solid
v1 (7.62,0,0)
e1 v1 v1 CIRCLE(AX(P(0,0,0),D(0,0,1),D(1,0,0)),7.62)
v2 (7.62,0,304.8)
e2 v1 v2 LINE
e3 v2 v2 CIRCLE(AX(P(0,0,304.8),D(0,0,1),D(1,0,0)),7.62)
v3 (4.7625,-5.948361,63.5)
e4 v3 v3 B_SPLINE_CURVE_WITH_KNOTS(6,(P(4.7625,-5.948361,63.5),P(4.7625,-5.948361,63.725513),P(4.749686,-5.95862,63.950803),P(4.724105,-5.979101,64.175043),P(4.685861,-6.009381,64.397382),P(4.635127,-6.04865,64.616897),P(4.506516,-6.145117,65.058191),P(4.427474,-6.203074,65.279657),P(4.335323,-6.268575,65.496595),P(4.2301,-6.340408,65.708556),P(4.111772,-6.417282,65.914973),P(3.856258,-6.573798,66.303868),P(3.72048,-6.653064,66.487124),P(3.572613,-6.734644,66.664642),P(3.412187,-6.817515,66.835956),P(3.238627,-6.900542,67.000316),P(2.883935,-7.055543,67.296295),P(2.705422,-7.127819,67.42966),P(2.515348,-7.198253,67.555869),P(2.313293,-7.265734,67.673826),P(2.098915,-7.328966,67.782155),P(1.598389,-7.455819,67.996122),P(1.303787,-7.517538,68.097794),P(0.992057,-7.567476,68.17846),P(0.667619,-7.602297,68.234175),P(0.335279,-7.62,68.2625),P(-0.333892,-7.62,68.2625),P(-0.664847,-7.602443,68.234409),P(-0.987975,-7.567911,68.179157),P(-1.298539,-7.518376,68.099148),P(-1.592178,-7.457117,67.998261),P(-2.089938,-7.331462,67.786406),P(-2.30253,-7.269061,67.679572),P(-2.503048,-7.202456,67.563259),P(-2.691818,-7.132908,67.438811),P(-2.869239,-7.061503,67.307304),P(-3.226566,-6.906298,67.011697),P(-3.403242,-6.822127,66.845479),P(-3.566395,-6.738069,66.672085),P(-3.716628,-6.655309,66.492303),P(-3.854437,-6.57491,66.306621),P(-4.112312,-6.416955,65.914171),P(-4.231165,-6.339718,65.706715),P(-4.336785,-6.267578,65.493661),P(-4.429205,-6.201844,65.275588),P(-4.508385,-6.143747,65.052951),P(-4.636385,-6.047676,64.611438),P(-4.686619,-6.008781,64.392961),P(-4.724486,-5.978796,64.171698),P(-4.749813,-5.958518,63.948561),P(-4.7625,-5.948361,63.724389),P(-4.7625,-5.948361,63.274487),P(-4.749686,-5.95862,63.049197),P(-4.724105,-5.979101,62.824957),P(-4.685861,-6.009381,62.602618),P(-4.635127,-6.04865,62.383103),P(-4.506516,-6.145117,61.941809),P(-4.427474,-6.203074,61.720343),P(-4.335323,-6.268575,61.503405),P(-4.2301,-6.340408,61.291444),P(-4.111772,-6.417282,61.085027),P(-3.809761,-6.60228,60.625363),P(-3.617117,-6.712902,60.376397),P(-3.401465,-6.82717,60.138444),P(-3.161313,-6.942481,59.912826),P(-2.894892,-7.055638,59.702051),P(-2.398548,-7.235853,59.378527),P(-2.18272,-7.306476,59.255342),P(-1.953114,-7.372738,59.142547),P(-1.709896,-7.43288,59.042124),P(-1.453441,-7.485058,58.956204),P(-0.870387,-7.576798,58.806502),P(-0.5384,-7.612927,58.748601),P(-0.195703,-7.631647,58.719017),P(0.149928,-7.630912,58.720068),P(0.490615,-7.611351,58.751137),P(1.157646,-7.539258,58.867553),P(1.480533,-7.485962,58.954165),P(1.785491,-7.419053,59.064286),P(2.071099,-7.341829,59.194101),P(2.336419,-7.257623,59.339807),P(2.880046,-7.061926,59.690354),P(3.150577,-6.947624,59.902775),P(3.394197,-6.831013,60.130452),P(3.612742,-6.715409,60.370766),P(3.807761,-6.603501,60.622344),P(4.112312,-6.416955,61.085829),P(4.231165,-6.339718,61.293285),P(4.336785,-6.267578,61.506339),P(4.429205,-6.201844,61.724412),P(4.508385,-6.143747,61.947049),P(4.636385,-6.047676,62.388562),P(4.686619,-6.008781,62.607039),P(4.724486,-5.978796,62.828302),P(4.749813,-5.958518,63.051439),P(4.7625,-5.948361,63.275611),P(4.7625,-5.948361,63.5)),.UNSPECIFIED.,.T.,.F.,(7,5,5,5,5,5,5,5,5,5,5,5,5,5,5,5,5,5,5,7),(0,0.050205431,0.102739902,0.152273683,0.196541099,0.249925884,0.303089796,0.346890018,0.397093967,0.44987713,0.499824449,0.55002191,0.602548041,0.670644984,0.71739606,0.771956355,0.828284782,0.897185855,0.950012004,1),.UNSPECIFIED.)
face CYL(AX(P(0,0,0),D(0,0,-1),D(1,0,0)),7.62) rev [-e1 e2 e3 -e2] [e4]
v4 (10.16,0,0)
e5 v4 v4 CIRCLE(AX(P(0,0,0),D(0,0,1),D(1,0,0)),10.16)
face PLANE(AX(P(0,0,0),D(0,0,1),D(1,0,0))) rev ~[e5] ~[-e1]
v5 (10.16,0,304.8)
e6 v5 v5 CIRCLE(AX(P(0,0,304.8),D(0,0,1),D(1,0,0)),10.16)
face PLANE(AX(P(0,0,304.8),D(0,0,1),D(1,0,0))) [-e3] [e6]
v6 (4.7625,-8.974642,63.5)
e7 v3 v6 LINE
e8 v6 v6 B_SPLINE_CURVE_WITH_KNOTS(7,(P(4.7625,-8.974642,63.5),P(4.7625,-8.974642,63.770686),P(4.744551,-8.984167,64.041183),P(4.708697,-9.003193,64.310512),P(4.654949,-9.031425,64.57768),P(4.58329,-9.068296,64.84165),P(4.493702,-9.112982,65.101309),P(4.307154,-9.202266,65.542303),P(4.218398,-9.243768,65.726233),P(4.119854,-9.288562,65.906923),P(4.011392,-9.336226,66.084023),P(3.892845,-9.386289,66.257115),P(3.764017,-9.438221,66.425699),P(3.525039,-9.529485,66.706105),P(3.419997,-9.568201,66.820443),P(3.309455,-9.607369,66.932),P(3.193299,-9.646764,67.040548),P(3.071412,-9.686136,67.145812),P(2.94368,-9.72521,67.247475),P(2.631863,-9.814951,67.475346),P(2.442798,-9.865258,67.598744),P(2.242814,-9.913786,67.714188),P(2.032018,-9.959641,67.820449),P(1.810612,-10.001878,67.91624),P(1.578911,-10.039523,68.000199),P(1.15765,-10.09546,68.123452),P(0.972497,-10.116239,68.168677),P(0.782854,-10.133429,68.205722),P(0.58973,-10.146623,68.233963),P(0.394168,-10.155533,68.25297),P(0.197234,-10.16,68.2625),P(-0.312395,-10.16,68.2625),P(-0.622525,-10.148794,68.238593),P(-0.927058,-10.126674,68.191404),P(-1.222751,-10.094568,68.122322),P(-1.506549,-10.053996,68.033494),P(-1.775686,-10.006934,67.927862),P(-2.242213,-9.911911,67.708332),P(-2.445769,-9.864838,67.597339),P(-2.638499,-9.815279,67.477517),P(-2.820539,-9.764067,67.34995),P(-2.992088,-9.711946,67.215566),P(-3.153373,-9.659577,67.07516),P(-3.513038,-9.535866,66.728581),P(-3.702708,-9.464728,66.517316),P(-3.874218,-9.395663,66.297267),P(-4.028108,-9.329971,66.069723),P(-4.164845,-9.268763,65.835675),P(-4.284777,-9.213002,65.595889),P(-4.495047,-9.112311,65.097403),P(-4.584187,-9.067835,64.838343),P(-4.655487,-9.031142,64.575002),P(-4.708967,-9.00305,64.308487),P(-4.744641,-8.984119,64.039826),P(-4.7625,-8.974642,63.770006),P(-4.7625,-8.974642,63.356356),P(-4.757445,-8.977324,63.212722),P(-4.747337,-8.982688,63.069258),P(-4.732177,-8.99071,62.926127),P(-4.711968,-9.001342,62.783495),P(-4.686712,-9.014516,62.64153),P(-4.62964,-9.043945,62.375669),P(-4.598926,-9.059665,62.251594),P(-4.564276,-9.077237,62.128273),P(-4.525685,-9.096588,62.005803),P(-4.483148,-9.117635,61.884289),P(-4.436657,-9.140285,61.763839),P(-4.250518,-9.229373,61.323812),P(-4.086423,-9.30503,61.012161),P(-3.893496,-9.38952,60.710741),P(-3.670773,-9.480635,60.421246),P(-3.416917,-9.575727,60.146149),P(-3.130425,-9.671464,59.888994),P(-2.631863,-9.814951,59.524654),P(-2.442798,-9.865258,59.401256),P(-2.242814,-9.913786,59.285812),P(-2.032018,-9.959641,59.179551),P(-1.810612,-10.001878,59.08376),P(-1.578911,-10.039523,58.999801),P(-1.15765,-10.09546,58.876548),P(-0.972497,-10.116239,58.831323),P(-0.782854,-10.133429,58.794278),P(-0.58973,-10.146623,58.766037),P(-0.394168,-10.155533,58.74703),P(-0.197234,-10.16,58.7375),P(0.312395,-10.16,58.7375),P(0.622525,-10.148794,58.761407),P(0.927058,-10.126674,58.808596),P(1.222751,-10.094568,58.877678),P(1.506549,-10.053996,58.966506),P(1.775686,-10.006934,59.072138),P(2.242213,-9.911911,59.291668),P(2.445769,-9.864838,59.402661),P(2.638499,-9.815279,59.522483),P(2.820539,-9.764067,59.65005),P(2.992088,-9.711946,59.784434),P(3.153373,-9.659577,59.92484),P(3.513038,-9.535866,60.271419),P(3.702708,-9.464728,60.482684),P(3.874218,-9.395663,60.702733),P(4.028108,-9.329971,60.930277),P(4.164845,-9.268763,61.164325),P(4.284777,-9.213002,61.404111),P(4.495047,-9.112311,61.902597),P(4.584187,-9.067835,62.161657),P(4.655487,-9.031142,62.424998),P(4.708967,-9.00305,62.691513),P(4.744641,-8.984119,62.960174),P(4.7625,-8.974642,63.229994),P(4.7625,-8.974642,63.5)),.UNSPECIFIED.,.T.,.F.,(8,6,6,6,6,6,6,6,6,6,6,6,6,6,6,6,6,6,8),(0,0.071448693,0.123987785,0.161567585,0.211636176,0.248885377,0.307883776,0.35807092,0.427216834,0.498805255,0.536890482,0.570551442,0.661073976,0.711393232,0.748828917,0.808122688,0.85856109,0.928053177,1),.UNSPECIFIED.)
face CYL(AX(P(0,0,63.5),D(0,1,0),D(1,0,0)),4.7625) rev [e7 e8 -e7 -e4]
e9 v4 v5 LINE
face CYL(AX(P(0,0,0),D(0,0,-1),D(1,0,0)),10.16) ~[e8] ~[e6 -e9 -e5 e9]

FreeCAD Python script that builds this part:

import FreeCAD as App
import Part
import Sketcher
from FreeCAD import Vector
Q = App.Units.Quantity

doc = App.newDocument("Part")
body = doc.addObject("PartDesign::Body", "Body")

# Sketch on XY plane
sketch1 = body.newObject("Sketcher::SketchObject", "Sketch")
sketch1.AttachmentSupport = (doc.getObject("XY_Plane"), [""])
sketch1.MapMode = "FlatFace"
sketch1.addGeometry([
    Part.Circle(Vector(0, 0, 0), Vector(0, 0, 1), 10.16),
    Part.Circle(Vector(0, 0, 0), Vector(0, 0, 1), 7.62),
], False)
sketch1.addConstraint([
    Sketcher.Constraint("Coincident", 0, 3, -1, 1),
    Sketcher.Constraint("Coincident", 1, 3, -1, 1),
    Sketcher.Constraint("Diameter", 0, Q("0.8 in")),
    Sketcher.Constraint("Diameter", 1, Q("0.6 in")),
])
pad1 = body.newObject("PartDesign::Pad", "Pad")
pad1.Profile = sketch1
pad1.Length = Q("12 in")

# Sketch on XZ plane
sketch2 = body.newObject("Sketcher::SketchObject", "Sketch001")
sketch2.AttachmentSupport = (doc.getObject("XZ_Plane"), [""])
sketch2.MapMode = "FlatFace"
sketch2.addGeometry(Part.Circle(Vector(0, 63.5, 0), Vector(0, 0, 1), 4.7625), False)
sketch2.addConstraint([
    Sketcher.Constraint("PointOnObject", 0, 3, -2),
    Sketcher.Constraint("Diameter", 0, Q("0.375 in")),
    Sketcher.Constraint("DistanceY", -1, 1, 0, 3, Q("2.5 in")),
])
pocket1 = body.newObject("PartDesign::Pocket", "Pocket")
pocket1.Profile = sketch2
pocket1.Type = "ThroughAll"
pocket1.Reversed = True

doc.recompute()
